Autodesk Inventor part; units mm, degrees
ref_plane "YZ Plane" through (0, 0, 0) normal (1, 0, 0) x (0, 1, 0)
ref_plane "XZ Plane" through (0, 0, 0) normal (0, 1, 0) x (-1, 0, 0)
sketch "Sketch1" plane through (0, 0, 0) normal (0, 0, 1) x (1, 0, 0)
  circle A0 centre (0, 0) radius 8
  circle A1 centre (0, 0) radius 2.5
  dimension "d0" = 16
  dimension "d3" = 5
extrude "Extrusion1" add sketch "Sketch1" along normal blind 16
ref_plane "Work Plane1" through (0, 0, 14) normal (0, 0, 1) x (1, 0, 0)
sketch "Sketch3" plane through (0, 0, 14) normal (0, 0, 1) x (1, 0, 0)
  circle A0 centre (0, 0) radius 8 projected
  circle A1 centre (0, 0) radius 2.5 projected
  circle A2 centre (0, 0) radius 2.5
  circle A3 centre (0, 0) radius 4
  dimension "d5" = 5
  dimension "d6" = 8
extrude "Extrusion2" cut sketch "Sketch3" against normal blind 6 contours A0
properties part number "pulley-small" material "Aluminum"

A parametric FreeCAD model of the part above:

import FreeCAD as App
import Part
import Sketcher
from FreeCAD import Vector
Q = App.Units.Quantity

doc = App.newDocument("Part")
body = doc.addObject("PartDesign::Body", "Body")

sketch1 = doc.addObject("Sketcher::SketchObject", "Sketch")
body.addObject(sketch1)
sketch1.AttachmentSupport = (doc.XY_Plane, [""])
sketch1.MapMode = "FlatFace"
sketch1.addGeometry([
    Part.Circle(Vector(0, 0, 0), Vector(0, 0, 1), 8),
    Part.Circle(Vector(0, 0, 0), Vector(0, 0, 1), 2.5),
], False)
sketch1.addConstraint([
    Sketcher.Constraint("Coincident", 0, 3, -1, 1),
    Sketcher.Constraint("Coincident", 1, 3, -1, 1),
    Sketcher.Constraint("Diameter", 0, Q("16 mm")),
    Sketcher.Constraint("Diameter", 1, Q("5 mm")),
])
pad1 = doc.addObject("PartDesign::Pad", "Pad")
body.addObject(pad1)
pad1.Profile = sketch1
pad1.Length = 16

sketch2 = doc.addObject("Sketcher::SketchObject", "Sketch001")
body.addObject(sketch2)
sketch2.AttachmentSupport = (doc.XY_Plane, [""])
sketch2.MapMode = "FlatFace"
sketch2.AttachmentOffset = App.Placement(Vector(0, 0, 14), App.Rotation())
sketch2.addGeometry([
    Part.Circle(Vector(0, 0, 0), Vector(0, 0, 1), 8),
    Part.Circle(Vector(0, 0, 0), Vector(0, 0, 1), 4),
], False)
sketch2.addConstraint([
    Sketcher.Constraint("Coincident", 0, 3, -1, 1),
    Sketcher.Constraint("Coincident", 1, 3, -1, 1),
    Sketcher.Constraint("Diameter", 0, Q("16 mm")),
    Sketcher.Constraint("Diameter", 1, Q("8 mm")),
])
pocket1 = doc.addObject("PartDesign::Pocket", "Pocket")
body.addObject(pocket1)
pocket1.Profile = sketch2
pocket1.Length = 6

doc.recompute()
